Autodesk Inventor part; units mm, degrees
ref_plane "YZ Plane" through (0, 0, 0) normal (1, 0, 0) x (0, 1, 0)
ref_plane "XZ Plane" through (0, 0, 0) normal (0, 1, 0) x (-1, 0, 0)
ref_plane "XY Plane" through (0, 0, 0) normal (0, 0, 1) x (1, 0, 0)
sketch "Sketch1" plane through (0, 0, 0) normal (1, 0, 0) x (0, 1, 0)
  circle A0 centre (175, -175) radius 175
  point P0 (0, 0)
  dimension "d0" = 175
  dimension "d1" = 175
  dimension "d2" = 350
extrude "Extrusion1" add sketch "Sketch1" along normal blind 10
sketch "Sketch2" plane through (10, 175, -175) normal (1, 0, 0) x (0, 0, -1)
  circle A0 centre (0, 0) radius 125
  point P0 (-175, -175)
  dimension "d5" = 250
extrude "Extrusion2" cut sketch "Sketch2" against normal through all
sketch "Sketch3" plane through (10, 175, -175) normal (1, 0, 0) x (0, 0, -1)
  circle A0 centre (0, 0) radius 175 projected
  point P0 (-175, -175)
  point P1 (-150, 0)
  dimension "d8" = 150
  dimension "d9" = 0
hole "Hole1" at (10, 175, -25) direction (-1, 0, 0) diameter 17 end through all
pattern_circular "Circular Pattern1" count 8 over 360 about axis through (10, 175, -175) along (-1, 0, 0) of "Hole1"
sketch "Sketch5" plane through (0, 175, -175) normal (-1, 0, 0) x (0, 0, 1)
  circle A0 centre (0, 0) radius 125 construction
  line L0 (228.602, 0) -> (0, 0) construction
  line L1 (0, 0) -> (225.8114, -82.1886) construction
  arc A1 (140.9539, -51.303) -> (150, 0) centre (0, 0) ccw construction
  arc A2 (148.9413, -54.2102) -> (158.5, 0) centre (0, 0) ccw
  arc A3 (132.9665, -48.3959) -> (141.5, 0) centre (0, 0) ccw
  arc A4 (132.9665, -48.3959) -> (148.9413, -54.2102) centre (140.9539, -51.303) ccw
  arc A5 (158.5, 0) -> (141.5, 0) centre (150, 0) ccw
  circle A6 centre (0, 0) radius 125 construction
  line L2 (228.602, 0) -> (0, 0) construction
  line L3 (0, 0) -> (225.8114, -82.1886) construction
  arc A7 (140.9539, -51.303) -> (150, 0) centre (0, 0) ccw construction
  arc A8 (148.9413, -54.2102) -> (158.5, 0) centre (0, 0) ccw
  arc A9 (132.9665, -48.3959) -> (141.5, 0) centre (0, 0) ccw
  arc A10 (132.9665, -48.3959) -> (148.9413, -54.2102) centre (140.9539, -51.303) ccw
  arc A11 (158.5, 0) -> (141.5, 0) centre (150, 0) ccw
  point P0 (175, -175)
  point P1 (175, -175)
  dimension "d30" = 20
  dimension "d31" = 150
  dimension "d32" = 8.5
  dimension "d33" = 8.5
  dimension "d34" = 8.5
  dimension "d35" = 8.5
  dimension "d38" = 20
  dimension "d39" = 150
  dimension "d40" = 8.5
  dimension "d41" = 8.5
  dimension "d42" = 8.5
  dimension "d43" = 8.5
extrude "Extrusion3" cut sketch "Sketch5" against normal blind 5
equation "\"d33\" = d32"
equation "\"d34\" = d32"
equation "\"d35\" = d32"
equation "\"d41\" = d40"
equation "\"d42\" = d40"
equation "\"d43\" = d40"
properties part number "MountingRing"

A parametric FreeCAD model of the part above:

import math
import FreeCAD as App
import Part
import Sketcher
Q = App.Units.Quantity

doc = App.newDocument("Part")
body = doc.addObject("PartDesign::Body", "Body")

sketch1 = body.newObject("Sketcher::SketchObject", "Sketch")
sketch1.AttachmentSupport = (doc.getObject("YZ_Plane"), [""])
sketch1.MapMode = "FlatFace"
sketch1.addGeometry(Part.Circle(App.Vector(175, -175, 0), App.Vector(0, 0, 1), 175), False)
sketch1.addConstraint([
    Sketcher.Constraint("Diameter", 0, Q("350 mm")),
    Sketcher.Constraint("DistanceX", -1, 1, 0, 3, Q("175 mm")),
    Sketcher.Constraint("DistanceY", 0, 3, -1, 1, Q("175 mm")),
])
pad1 = body.newObject("PartDesign::Pad", "Pad")
pad1.Profile = sketch1
pad1.Length = 10

sketch2 = body.newObject("Sketcher::SketchObject", "Sketch001")
sketch2.AttachmentSupport = (doc.getObject("YZ_Plane"), [""])
sketch2.MapMode = "FlatFace"
sketch2.AttachmentOffset = App.Placement(App.Vector(0, 0, 10), App.Rotation())
sketch2.addGeometry(Part.Circle(App.Vector(175, -175, 0), App.Vector(0, 0, 1), 125), False)
sketch2.addConstraint([
    Sketcher.Constraint("Diameter", 0, Q("250 mm")),
    Sketcher.Constraint("DistanceX", -1, 1, 0, 3, Q("175 mm")),
    Sketcher.Constraint("DistanceY", 0, 3, -1, 1, Q("175 mm")),
])
pocket1 = body.newObject("PartDesign::Pocket", "Pocket")
pocket1.Profile = sketch2
pocket1.Type = "ThroughAll"

sketch3 = body.newObject("Sketcher::SketchObject", "Sketch002")
sketch3.AttachmentSupport = (doc.getObject("YZ_Plane"), [""])
sketch3.MapMode = "FlatFace"
sketch3.AttachmentOffset = App.Placement(App.Vector(0, 0, 10), App.Rotation())
sketch3.addGeometry(Part.Circle(App.Vector(175, -25, 0), App.Vector(0, 0, 1), 8), False)
sketch3.addConstraint([
    Sketcher.Constraint("Diameter", 0, Q("17 mm")),
    Sketcher.Constraint("DistanceX", -1, 1, 0, 3, Q("175 mm")),
    Sketcher.Constraint("DistanceY", 0, 3, -1, 1, Q("25 mm")),
])
doc.recompute()
hole = body.newObject("PartDesign::Hole", "Hole")
hole.Profile = sketch3
hole.ThreadType = "None"
hole.Diameter = 17
hole.DepthType = "ThroughAll"
doc.recompute()

datumline = body.newObject("PartDesign::Line", "DatumLine")
datumline.Placement = App.Placement(App.Vector(0, 175, -175), App.Rotation(App.Vector(0, 0, 1), App.Vector(1, 0, 0)))
polarpattern = body.newObject("PartDesign::PolarPattern", "PolarPattern")
polarpattern.Originals = [hole]
polarpattern.Axis = (datumline, [""])
polarpattern.Angle = 360
polarpattern.Occurrences = 8
body.Tip = polarpattern

sketch4 = body.newObject("Sketcher::SketchObject", "Sketch003")
sketch4.AttachmentSupport = (doc.getObject("YZ_Plane"), [""])
sketch4.MapMode = "FlatFace"
sketch4.addGeometry([
    Part.ArcOfCircle(Part.Circle(App.Vector(124, -34, 0), App.Vector(0, 0, 1), 8), math.radians(110), math.radians(290)),
    Part.ArcOfCircle(Part.Circle(App.Vector(175, -175, 0), App.Vector(0, 0, 1), 159), math.radians(90), math.radians(110)),
    Part.ArcOfCircle(Part.Circle(App.Vector(175, -25, 0), App.Vector(0, 0, 1), 8), math.radians(-90), math.radians(90)),
    Part.ArcOfCircle(Part.Circle(App.Vector(175, -175, 0), App.Vector(0, 0, 1), 142), math.radians(90), math.radians(110)),
], False)
sketch4.addConstraint([
    Sketcher.Constraint("Tangent", 0, 1, 1, 2),
    Sketcher.Constraint("Tangent", 1, 1, 2, 2),
    Sketcher.Constraint("Tangent", 2, 1, 3, 1),
    Sketcher.Constraint("Tangent", 3, 2, 0, 2),
    Sketcher.Constraint("Coincident", 3, 3, 1, 3),
    Sketcher.Constraint("Vertical", 1, 3, 2, 3),
    Sketcher.Constraint("Radius", 0, Q("8.5 mm")),
    Sketcher.Constraint("DistanceY", 1, 3, 2, 3, Q("150 mm")),
    Sketcher.Constraint("DistanceX", -1, 1, 1, 3, Q("175 mm")),
    Sketcher.Constraint("DistanceY", 1, 3, -1, 1, Q("175 mm")),
    Sketcher.Constraint("DistanceX", -1, 1, 0, 3, Q("123.697 mm")),
])
pocket2 = body.newObject("PartDesign::Pocket", "Pocket001")
pocket2.Profile = sketch4
pocket2.Length = 5
pocket2.Reversed = True

doc.recompute()
